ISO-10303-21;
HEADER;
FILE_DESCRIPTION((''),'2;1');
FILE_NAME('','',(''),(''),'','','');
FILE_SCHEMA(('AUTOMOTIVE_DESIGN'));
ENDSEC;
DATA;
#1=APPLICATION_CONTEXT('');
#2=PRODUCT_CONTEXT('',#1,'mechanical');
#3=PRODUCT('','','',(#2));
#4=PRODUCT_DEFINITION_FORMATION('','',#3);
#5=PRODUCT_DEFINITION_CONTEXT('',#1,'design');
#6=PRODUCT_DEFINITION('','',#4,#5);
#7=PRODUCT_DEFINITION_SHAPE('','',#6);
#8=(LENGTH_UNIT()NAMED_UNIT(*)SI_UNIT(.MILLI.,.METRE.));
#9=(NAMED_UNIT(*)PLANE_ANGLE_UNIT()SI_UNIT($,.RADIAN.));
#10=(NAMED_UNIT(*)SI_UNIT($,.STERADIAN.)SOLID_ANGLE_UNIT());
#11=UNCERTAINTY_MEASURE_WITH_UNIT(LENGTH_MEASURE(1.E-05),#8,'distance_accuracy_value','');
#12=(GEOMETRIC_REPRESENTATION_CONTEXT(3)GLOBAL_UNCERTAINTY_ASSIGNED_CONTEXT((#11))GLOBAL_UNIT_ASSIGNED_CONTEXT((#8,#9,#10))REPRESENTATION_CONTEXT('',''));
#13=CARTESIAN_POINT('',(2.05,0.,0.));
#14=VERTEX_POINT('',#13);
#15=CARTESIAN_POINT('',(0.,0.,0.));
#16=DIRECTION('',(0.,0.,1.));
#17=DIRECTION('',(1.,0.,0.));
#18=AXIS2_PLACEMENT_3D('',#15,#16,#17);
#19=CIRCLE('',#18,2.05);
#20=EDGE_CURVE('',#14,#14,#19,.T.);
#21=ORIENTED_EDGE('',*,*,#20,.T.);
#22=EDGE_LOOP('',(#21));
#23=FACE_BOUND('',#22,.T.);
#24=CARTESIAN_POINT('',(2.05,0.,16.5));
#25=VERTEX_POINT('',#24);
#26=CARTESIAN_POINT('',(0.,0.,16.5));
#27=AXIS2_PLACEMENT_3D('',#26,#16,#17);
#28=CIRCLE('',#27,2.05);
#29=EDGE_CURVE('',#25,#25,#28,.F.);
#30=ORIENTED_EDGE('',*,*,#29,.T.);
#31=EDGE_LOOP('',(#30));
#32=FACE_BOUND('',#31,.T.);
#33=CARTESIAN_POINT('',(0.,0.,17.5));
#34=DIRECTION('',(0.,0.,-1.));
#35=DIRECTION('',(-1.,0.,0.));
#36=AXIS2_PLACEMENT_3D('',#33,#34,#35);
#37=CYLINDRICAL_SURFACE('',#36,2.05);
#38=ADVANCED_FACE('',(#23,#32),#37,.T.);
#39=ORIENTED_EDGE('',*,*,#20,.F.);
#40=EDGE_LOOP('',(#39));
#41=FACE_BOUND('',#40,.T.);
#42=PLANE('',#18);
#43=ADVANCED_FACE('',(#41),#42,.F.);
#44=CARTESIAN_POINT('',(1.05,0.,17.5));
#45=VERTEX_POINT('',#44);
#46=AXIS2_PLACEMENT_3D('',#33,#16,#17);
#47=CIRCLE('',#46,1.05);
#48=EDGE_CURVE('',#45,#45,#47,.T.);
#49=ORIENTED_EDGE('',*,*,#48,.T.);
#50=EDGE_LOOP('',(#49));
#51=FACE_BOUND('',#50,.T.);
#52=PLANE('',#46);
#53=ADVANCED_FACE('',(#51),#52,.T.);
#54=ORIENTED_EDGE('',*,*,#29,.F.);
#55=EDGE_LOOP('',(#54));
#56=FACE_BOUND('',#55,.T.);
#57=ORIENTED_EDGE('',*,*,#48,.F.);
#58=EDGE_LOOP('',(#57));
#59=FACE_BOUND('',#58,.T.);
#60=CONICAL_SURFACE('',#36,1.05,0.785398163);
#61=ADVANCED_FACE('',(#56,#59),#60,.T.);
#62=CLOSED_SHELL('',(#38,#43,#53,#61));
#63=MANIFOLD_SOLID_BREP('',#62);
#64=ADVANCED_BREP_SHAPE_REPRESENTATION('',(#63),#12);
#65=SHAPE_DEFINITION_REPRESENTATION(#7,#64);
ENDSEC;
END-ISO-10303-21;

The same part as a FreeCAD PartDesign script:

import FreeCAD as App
import Part
import Sketcher


def edges_at(feature, points):
    """Names of the edges that pass closest to the given points."""
    edges = feature.Shape.Edges
    near = lambda p: min(range(len(edges)), key=lambda i: edges[i].distToShape(Part.Vertex(*p))[0])
    return sorted({f"Edge{near(p) + 1}" for p in points})

doc = App.newDocument("Part")
body = doc.addObject("PartDesign::Body", "Body")

# Sketch on XY plane
sketch1 = body.newObject("Sketcher::SketchObject", "Sketch")
sketch1.AttachmentSupport = (doc.getObject("XY_Plane"), [""])
sketch1.MapMode = "FlatFace"
sketch1.addGeometry(Part.Circle(App.Vector(0, 0, 0), App.Vector(0, 0, 1), 2), False)
sketch1.addConstraint([
    Sketcher.Constraint("Coincident", 0, 3, -1, 1),
    Sketcher.Constraint("Diameter", 0, 4.1),
])
pad1 = body.newObject("PartDesign::Pad", "Pad")
pad1.Profile = sketch1
pad1.Length = 17.5
doc.recompute()

chamfer = body.newObject("PartDesign::Chamfer", "Chamfer")
chamfer.Base = (pad1, edges_at(pad1, [(-2.05, 0, 17.5)]))
chamfer.Size = 1

doc.recompute()
